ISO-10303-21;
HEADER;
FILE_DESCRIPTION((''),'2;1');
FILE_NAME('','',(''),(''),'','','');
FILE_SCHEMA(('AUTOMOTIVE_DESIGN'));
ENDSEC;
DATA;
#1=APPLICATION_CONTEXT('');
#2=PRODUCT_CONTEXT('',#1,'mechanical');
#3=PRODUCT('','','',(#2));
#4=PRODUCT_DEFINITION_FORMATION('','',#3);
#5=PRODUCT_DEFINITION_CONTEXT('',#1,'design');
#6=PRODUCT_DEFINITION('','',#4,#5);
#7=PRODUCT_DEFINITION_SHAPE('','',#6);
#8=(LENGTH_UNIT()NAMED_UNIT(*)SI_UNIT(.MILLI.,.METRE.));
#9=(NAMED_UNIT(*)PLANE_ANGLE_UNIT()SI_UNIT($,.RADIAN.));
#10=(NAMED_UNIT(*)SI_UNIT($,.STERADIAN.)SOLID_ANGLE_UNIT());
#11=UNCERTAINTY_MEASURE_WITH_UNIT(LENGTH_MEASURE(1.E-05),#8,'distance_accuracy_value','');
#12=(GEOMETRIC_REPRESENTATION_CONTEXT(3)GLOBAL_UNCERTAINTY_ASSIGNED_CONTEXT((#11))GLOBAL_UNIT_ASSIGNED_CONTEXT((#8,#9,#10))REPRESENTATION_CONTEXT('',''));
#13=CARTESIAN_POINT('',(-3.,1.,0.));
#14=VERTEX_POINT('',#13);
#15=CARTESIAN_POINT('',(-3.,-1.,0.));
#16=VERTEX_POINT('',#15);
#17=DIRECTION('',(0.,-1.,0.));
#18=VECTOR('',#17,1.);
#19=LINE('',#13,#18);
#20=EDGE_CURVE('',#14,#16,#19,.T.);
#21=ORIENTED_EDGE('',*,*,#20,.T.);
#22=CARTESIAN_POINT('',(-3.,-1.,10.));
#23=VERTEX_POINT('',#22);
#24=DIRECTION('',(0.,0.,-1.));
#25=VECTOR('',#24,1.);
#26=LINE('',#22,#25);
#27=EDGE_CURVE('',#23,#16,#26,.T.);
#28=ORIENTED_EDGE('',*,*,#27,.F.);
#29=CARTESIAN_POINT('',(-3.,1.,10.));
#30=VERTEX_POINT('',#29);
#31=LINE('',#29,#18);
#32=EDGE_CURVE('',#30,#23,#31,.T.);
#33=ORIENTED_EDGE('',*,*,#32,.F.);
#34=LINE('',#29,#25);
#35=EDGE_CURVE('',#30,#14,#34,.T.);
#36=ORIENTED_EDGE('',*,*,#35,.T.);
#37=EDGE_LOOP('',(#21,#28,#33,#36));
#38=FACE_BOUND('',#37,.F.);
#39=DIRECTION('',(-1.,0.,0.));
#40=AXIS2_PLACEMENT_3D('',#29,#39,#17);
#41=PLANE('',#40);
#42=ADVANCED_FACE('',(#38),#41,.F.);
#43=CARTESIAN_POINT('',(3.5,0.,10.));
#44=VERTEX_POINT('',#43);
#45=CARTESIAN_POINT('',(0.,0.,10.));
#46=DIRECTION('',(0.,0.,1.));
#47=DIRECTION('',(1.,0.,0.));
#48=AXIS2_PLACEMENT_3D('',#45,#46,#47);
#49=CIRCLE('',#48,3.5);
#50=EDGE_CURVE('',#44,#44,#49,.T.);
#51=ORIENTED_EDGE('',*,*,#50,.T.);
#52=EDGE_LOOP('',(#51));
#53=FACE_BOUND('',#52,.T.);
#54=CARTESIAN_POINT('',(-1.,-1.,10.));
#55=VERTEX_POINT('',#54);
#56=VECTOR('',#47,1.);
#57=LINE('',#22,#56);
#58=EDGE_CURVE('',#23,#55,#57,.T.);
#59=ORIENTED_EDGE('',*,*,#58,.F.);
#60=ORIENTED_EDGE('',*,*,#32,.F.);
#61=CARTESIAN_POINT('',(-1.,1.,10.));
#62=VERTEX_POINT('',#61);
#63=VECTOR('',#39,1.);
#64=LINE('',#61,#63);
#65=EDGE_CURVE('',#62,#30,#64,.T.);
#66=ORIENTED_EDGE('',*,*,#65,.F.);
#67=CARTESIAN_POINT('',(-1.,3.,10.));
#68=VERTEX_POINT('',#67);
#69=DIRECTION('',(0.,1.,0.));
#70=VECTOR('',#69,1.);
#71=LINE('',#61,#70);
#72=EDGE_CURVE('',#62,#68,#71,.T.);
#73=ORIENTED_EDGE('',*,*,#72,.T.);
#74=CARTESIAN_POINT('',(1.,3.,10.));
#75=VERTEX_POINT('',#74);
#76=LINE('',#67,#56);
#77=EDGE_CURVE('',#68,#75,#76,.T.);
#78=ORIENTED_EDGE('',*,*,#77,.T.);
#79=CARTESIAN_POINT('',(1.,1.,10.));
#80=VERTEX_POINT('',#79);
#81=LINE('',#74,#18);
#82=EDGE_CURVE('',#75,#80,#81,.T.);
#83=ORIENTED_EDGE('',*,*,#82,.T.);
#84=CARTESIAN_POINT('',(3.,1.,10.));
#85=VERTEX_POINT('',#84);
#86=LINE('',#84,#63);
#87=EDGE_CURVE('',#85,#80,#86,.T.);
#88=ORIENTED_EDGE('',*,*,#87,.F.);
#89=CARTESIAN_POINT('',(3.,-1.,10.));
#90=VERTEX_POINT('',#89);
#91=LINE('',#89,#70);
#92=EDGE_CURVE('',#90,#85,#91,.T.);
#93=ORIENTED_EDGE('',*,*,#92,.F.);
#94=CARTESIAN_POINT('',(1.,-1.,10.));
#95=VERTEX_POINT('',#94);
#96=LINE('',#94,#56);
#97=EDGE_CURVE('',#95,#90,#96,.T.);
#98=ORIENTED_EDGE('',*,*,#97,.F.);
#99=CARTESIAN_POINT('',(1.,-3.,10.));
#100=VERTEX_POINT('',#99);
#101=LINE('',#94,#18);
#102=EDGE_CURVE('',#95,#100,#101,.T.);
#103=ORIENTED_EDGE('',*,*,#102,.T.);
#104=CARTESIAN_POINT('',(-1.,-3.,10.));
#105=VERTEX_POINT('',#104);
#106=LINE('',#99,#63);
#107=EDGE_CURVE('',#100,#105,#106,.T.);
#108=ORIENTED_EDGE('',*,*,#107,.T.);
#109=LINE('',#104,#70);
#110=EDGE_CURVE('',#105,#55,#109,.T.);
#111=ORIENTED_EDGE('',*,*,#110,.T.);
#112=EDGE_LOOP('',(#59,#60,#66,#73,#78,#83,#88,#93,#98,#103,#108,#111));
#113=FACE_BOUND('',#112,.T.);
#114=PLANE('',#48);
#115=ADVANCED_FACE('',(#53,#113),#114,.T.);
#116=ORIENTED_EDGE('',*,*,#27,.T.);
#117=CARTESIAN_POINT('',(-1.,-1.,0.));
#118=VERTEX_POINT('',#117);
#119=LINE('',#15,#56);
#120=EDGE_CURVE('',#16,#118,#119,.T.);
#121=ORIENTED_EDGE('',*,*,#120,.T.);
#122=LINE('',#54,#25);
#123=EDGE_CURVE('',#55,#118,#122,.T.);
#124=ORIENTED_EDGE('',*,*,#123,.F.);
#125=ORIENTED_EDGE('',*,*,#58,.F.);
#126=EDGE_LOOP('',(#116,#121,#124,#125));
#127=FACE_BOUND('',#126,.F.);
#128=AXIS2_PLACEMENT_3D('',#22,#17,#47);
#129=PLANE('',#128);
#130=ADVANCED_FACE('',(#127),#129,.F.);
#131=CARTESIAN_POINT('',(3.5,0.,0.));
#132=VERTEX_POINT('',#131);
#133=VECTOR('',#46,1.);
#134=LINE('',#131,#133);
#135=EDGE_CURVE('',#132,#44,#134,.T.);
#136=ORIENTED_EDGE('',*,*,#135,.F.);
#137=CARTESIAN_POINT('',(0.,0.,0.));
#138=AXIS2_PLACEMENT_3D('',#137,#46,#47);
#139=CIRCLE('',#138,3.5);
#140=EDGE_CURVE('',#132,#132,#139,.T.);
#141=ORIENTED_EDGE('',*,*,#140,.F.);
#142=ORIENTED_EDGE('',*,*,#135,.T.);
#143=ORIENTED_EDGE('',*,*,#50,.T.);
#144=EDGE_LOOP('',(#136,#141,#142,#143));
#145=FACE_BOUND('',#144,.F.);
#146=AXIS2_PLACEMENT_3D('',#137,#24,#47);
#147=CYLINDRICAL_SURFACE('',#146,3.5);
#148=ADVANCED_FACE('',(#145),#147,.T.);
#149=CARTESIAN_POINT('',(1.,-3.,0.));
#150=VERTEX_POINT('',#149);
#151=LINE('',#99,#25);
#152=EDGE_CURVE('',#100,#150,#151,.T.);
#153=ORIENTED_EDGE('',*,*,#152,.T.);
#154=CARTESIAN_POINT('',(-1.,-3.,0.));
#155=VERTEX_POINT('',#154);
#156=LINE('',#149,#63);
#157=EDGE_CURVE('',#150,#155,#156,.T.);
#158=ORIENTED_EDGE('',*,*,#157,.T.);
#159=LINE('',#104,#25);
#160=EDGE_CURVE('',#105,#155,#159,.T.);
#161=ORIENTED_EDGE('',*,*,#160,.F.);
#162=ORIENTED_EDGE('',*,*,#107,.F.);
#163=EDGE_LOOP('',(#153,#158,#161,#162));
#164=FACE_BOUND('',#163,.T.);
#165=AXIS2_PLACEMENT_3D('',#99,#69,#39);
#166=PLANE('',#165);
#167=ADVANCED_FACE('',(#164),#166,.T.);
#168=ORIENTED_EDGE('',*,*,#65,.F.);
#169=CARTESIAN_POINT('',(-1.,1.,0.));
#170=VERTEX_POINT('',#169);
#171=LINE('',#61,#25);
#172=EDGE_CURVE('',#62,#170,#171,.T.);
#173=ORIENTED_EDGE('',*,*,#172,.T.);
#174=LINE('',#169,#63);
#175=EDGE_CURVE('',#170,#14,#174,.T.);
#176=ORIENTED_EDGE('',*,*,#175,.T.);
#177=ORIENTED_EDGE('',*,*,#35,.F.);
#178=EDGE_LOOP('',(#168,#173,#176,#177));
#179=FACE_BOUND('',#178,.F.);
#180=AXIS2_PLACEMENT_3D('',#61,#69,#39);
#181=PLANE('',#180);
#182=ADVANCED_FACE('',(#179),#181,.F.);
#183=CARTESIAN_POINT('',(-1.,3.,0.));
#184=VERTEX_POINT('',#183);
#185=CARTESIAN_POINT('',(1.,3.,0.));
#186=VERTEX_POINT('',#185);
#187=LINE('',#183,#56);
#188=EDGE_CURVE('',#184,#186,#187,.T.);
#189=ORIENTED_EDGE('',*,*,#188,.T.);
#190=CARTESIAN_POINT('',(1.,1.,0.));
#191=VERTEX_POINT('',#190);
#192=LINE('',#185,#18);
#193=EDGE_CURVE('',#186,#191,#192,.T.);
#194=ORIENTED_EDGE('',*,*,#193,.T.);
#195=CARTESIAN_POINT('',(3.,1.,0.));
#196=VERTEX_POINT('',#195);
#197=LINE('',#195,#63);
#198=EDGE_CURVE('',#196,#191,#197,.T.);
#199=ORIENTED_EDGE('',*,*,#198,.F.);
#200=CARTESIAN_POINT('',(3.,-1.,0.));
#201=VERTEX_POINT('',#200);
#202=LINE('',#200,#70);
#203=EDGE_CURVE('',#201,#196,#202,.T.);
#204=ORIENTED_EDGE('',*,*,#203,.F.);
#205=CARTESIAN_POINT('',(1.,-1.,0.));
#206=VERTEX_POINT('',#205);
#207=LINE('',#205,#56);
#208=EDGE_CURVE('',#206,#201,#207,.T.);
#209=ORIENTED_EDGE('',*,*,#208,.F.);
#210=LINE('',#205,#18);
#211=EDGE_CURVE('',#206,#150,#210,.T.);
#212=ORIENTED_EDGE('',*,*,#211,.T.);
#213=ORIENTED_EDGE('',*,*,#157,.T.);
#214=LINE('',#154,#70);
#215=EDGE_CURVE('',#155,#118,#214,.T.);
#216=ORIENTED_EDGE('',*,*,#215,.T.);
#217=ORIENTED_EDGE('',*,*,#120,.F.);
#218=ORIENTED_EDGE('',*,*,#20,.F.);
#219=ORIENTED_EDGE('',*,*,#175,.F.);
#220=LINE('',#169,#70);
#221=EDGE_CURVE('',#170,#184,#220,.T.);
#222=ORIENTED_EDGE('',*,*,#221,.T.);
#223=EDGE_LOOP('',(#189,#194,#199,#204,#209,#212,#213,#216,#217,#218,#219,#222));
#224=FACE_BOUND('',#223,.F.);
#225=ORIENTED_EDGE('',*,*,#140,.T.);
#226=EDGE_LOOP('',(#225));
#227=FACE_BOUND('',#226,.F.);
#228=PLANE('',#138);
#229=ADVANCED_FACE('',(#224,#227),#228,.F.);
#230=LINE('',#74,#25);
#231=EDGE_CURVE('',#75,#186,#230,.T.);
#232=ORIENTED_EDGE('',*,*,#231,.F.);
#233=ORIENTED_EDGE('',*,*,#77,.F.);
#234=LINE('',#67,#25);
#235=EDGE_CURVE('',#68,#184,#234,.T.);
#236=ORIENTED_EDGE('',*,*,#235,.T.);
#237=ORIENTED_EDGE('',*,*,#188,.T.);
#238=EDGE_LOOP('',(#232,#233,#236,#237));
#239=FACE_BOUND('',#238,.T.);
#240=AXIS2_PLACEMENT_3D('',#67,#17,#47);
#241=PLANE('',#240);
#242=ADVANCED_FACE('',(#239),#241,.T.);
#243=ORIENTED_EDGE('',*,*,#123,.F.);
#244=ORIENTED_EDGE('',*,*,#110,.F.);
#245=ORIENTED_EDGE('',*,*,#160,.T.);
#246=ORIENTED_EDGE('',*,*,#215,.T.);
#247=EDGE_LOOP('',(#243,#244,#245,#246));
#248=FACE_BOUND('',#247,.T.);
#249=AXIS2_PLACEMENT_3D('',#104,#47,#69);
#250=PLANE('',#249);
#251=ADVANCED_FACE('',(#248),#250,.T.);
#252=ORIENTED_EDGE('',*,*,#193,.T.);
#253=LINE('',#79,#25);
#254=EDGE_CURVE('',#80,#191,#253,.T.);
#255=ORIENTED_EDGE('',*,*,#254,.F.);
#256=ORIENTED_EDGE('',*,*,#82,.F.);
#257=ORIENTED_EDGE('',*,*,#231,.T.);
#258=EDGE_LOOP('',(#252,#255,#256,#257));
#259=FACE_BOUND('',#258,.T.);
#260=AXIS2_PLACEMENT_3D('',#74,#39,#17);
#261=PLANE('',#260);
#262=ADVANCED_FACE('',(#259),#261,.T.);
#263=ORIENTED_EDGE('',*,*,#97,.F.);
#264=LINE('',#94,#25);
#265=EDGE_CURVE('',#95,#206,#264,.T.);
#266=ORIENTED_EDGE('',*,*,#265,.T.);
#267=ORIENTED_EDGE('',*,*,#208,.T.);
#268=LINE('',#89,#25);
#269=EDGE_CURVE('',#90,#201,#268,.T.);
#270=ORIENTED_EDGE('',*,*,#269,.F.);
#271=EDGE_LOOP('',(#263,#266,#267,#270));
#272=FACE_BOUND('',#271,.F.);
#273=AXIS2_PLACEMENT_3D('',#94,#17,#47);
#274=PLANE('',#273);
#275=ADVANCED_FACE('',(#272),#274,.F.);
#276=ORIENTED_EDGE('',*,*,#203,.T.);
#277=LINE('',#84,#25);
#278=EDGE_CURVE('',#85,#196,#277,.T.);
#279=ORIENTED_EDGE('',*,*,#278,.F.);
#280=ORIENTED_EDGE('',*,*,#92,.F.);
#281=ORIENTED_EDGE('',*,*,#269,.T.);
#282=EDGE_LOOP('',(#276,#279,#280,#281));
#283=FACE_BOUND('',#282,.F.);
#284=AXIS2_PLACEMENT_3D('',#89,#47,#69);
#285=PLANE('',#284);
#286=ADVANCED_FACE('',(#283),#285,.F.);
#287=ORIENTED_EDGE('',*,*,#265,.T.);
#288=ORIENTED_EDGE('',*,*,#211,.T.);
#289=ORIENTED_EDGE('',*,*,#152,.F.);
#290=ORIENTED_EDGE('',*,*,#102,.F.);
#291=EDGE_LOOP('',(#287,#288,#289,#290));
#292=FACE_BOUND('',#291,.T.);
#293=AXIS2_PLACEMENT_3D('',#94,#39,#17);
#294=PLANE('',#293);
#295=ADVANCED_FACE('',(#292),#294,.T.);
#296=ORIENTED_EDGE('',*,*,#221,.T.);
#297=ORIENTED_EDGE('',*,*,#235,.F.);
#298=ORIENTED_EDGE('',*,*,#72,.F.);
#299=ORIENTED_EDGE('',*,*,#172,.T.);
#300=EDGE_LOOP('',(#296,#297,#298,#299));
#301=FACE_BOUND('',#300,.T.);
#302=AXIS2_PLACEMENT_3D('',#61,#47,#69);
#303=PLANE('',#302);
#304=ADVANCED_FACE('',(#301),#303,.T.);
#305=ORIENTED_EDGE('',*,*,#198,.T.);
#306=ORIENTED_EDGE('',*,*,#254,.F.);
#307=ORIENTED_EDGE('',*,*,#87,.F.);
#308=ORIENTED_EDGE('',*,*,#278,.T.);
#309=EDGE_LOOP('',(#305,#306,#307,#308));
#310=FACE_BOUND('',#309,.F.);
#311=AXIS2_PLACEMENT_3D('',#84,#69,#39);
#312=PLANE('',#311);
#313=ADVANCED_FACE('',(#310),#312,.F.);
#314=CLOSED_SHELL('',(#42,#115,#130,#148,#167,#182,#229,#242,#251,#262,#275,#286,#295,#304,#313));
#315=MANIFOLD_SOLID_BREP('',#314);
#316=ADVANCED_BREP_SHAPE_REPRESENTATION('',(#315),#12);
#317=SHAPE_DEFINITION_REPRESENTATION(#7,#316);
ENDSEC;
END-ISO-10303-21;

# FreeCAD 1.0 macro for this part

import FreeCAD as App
import Part
import Sketcher
from FreeCAD import Vector

doc = App.newDocument("Part")
params = doc.addObject("Spreadsheet::Sheet", "Params")
for row, (alias, value) in enumerate([
    ("sketch1_diameter", "7 mm"),
    ("pad1_length", "10 mm"),
    ("sketch2_width", "2 mm"),
    ("pocket1_length", "10 mm"),
], start=1):
    params.set(f"A{row}", alias)
    params.set(f"B{row}", "=" + value)
    params.setAlias(f"B{row}", alias)

body = doc.addObject("PartDesign::Body", "Body")

sketch1 = body.newObject("Sketcher::SketchObject", "Sketch")
sketch1.AttachmentSupport = (doc.getObject("XY_Plane"), [""])
sketch1.MapMode = "FlatFace"
sketch1.addGeometry(Part.Circle(Vector(0, 0, 0), Vector(0, 0, 1), 3.5), False)
sketch1.addConstraint(Sketcher.Constraint("Coincident", 0, 3, -1, 1))
sketch1.addConstraint(Sketcher.Constraint("Diameter", 0, 7.0))
sketch1.setExpression("Constraints[1]", "Params.sketch1_diameter")
pad1 = body.newObject("PartDesign::Pad", "Pad")
pad1.Profile = sketch1
pad1.setExpression("Length", "Params.pad1_length")

sketch2 = body.newObject("Sketcher::SketchObject", "Sketch001")
sketch2.AttachmentSupport = (doc.getObject("XY_Plane"), [""])
sketch2.MapMode = "FlatFace"
sketch2.AttachmentOffset = App.Placement(Vector(0, 0, 10), App.Rotation())
sketch2.addGeometry(Part.LineSegment(Vector(-1, -3, 0), Vector(1, -3, 0)), False)
sketch2.addGeometry(Part.LineSegment(Vector(1, -3, 0), Vector(1, -1, 0)), False)
sketch2.addGeometry(Part.LineSegment(Vector(1, -1, 0), Vector(3, -1, 0)), False)
sketch2.addGeometry(Part.LineSegment(Vector(3, -1, 0), Vector(3, 1, 0)), False)
sketch2.addGeometry(Part.LineSegment(Vector(3, 1, 0), Vector(1, 1, 0)), False)
sketch2.addGeometry(Part.LineSegment(Vector(1, 1, 0), Vector(1, 3, 0)), False)
sketch2.addGeometry(Part.LineSegment(Vector(1, 3, 0), Vector(-1, 3, 0)), False)
sketch2.addGeometry(Part.LineSegment(Vector(-1, 3, 0), Vector(-1, 1, 0)), False)
sketch2.addGeometry(Part.LineSegment(Vector(-1, 1, 0), Vector(-3, 1, 0)), False)
sketch2.addGeometry(Part.LineSegment(Vector(-3, 1, 0), Vector(-3, -1, 0)), False)
sketch2.addGeometry(Part.LineSegment(Vector(-3, -1, 0), Vector(-1, -1, 0)), False)
sketch2.addGeometry(Part.LineSegment(Vector(-1, -1, 0), Vector(-1, -3, 0)), False)
sketch2.addConstraint(Sketcher.Constraint("Coincident", 0, 2, 1, 1))
sketch2.addConstraint(Sketcher.Constraint("Coincident", 1, 2, 2, 1))
sketch2.addConstraint(Sketcher.Constraint("Coincident", 2, 2, 3, 1))
sketch2.addConstraint(Sketcher.Constraint("Coincident", 3, 2, 4, 1))
sketch2.addConstraint(Sketcher.Constraint("Coincident", 4, 2, 5, 1))
sketch2.addConstraint(Sketcher.Constraint("Coincident", 5, 2, 6, 1))
sketch2.addConstraint(Sketcher.Constraint("Coincident", 6, 2, 7, 1))
sketch2.addConstraint(Sketcher.Constraint("Coincident", 7, 2, 8, 1))
sketch2.addConstraint(Sketcher.Constraint("Coincident", 8, 2, 9, 1))
sketch2.addConstraint(Sketcher.Constraint("Coincident", 9, 2, 10, 1))
sketch2.addConstraint(Sketcher.Constraint("Coincident", 10, 2, 11, 1))
sketch2.addConstraint(Sketcher.Constraint("Coincident", 11, 2, 0, 1))
sketch2.addConstraint(Sketcher.Constraint("Horizontal", 0))
sketch2.addConstraint(Sketcher.Constraint("Vertical", 1))
sketch2.addConstraint(Sketcher.Constraint("Horizontal", 2))
sketch2.addConstraint(Sketcher.Constraint("Vertical", 3))
sketch2.addConstraint(Sketcher.Constraint("Horizontal", 4))
sketch2.addConstraint(Sketcher.Constraint("Vertical", 5))
sketch2.addConstraint(Sketcher.Constraint("Horizontal", 6))
sketch2.addConstraint(Sketcher.Constraint("Vertical", 7))
sketch2.addConstraint(Sketcher.Constraint("Horizontal", 8))
sketch2.addConstraint(Sketcher.Constraint("Vertical", 9))
sketch2.addConstraint(Sketcher.Constraint("Horizontal", 10))
sketch2.addConstraint(Sketcher.Constraint("Vertical", 11))
sketch2.addConstraint(Sketcher.Constraint("Symmetric", 0, 2, 6, 2, -1, 1))
sketch2.addConstraint(Sketcher.Constraint("Symmetric", 2, 2, 8, 2, -1, 1))
sketch2.addConstraint(Sketcher.Constraint("Symmetric", 4, 2, 10, 2, -1, 1))
sketch2.addConstraint(Sketcher.Constraint("Symmetric", 4, 2, 7, 2, -2))
sketch2.addConstraint(Sketcher.Constraint("Equal", 0, 2))
sketch2.addConstraint(Sketcher.Constraint("Equal", 10, 1))
sketch2.addConstraint(Sketcher.Constraint("Equal", 1, 3))
sketch2.addConstraint(Sketcher.Constraint("DistanceX", 0, 1, 0, 2, 2.0))
sketch2.setExpression("Constraints[31]", "Params.sketch2_width")
pocket1 = body.newObject("PartDesign::Pocket", "Pocket")
pocket1.Profile = sketch2
pocket1.setExpression("Length", "Params.pocket1_length")

doc.recompute()
